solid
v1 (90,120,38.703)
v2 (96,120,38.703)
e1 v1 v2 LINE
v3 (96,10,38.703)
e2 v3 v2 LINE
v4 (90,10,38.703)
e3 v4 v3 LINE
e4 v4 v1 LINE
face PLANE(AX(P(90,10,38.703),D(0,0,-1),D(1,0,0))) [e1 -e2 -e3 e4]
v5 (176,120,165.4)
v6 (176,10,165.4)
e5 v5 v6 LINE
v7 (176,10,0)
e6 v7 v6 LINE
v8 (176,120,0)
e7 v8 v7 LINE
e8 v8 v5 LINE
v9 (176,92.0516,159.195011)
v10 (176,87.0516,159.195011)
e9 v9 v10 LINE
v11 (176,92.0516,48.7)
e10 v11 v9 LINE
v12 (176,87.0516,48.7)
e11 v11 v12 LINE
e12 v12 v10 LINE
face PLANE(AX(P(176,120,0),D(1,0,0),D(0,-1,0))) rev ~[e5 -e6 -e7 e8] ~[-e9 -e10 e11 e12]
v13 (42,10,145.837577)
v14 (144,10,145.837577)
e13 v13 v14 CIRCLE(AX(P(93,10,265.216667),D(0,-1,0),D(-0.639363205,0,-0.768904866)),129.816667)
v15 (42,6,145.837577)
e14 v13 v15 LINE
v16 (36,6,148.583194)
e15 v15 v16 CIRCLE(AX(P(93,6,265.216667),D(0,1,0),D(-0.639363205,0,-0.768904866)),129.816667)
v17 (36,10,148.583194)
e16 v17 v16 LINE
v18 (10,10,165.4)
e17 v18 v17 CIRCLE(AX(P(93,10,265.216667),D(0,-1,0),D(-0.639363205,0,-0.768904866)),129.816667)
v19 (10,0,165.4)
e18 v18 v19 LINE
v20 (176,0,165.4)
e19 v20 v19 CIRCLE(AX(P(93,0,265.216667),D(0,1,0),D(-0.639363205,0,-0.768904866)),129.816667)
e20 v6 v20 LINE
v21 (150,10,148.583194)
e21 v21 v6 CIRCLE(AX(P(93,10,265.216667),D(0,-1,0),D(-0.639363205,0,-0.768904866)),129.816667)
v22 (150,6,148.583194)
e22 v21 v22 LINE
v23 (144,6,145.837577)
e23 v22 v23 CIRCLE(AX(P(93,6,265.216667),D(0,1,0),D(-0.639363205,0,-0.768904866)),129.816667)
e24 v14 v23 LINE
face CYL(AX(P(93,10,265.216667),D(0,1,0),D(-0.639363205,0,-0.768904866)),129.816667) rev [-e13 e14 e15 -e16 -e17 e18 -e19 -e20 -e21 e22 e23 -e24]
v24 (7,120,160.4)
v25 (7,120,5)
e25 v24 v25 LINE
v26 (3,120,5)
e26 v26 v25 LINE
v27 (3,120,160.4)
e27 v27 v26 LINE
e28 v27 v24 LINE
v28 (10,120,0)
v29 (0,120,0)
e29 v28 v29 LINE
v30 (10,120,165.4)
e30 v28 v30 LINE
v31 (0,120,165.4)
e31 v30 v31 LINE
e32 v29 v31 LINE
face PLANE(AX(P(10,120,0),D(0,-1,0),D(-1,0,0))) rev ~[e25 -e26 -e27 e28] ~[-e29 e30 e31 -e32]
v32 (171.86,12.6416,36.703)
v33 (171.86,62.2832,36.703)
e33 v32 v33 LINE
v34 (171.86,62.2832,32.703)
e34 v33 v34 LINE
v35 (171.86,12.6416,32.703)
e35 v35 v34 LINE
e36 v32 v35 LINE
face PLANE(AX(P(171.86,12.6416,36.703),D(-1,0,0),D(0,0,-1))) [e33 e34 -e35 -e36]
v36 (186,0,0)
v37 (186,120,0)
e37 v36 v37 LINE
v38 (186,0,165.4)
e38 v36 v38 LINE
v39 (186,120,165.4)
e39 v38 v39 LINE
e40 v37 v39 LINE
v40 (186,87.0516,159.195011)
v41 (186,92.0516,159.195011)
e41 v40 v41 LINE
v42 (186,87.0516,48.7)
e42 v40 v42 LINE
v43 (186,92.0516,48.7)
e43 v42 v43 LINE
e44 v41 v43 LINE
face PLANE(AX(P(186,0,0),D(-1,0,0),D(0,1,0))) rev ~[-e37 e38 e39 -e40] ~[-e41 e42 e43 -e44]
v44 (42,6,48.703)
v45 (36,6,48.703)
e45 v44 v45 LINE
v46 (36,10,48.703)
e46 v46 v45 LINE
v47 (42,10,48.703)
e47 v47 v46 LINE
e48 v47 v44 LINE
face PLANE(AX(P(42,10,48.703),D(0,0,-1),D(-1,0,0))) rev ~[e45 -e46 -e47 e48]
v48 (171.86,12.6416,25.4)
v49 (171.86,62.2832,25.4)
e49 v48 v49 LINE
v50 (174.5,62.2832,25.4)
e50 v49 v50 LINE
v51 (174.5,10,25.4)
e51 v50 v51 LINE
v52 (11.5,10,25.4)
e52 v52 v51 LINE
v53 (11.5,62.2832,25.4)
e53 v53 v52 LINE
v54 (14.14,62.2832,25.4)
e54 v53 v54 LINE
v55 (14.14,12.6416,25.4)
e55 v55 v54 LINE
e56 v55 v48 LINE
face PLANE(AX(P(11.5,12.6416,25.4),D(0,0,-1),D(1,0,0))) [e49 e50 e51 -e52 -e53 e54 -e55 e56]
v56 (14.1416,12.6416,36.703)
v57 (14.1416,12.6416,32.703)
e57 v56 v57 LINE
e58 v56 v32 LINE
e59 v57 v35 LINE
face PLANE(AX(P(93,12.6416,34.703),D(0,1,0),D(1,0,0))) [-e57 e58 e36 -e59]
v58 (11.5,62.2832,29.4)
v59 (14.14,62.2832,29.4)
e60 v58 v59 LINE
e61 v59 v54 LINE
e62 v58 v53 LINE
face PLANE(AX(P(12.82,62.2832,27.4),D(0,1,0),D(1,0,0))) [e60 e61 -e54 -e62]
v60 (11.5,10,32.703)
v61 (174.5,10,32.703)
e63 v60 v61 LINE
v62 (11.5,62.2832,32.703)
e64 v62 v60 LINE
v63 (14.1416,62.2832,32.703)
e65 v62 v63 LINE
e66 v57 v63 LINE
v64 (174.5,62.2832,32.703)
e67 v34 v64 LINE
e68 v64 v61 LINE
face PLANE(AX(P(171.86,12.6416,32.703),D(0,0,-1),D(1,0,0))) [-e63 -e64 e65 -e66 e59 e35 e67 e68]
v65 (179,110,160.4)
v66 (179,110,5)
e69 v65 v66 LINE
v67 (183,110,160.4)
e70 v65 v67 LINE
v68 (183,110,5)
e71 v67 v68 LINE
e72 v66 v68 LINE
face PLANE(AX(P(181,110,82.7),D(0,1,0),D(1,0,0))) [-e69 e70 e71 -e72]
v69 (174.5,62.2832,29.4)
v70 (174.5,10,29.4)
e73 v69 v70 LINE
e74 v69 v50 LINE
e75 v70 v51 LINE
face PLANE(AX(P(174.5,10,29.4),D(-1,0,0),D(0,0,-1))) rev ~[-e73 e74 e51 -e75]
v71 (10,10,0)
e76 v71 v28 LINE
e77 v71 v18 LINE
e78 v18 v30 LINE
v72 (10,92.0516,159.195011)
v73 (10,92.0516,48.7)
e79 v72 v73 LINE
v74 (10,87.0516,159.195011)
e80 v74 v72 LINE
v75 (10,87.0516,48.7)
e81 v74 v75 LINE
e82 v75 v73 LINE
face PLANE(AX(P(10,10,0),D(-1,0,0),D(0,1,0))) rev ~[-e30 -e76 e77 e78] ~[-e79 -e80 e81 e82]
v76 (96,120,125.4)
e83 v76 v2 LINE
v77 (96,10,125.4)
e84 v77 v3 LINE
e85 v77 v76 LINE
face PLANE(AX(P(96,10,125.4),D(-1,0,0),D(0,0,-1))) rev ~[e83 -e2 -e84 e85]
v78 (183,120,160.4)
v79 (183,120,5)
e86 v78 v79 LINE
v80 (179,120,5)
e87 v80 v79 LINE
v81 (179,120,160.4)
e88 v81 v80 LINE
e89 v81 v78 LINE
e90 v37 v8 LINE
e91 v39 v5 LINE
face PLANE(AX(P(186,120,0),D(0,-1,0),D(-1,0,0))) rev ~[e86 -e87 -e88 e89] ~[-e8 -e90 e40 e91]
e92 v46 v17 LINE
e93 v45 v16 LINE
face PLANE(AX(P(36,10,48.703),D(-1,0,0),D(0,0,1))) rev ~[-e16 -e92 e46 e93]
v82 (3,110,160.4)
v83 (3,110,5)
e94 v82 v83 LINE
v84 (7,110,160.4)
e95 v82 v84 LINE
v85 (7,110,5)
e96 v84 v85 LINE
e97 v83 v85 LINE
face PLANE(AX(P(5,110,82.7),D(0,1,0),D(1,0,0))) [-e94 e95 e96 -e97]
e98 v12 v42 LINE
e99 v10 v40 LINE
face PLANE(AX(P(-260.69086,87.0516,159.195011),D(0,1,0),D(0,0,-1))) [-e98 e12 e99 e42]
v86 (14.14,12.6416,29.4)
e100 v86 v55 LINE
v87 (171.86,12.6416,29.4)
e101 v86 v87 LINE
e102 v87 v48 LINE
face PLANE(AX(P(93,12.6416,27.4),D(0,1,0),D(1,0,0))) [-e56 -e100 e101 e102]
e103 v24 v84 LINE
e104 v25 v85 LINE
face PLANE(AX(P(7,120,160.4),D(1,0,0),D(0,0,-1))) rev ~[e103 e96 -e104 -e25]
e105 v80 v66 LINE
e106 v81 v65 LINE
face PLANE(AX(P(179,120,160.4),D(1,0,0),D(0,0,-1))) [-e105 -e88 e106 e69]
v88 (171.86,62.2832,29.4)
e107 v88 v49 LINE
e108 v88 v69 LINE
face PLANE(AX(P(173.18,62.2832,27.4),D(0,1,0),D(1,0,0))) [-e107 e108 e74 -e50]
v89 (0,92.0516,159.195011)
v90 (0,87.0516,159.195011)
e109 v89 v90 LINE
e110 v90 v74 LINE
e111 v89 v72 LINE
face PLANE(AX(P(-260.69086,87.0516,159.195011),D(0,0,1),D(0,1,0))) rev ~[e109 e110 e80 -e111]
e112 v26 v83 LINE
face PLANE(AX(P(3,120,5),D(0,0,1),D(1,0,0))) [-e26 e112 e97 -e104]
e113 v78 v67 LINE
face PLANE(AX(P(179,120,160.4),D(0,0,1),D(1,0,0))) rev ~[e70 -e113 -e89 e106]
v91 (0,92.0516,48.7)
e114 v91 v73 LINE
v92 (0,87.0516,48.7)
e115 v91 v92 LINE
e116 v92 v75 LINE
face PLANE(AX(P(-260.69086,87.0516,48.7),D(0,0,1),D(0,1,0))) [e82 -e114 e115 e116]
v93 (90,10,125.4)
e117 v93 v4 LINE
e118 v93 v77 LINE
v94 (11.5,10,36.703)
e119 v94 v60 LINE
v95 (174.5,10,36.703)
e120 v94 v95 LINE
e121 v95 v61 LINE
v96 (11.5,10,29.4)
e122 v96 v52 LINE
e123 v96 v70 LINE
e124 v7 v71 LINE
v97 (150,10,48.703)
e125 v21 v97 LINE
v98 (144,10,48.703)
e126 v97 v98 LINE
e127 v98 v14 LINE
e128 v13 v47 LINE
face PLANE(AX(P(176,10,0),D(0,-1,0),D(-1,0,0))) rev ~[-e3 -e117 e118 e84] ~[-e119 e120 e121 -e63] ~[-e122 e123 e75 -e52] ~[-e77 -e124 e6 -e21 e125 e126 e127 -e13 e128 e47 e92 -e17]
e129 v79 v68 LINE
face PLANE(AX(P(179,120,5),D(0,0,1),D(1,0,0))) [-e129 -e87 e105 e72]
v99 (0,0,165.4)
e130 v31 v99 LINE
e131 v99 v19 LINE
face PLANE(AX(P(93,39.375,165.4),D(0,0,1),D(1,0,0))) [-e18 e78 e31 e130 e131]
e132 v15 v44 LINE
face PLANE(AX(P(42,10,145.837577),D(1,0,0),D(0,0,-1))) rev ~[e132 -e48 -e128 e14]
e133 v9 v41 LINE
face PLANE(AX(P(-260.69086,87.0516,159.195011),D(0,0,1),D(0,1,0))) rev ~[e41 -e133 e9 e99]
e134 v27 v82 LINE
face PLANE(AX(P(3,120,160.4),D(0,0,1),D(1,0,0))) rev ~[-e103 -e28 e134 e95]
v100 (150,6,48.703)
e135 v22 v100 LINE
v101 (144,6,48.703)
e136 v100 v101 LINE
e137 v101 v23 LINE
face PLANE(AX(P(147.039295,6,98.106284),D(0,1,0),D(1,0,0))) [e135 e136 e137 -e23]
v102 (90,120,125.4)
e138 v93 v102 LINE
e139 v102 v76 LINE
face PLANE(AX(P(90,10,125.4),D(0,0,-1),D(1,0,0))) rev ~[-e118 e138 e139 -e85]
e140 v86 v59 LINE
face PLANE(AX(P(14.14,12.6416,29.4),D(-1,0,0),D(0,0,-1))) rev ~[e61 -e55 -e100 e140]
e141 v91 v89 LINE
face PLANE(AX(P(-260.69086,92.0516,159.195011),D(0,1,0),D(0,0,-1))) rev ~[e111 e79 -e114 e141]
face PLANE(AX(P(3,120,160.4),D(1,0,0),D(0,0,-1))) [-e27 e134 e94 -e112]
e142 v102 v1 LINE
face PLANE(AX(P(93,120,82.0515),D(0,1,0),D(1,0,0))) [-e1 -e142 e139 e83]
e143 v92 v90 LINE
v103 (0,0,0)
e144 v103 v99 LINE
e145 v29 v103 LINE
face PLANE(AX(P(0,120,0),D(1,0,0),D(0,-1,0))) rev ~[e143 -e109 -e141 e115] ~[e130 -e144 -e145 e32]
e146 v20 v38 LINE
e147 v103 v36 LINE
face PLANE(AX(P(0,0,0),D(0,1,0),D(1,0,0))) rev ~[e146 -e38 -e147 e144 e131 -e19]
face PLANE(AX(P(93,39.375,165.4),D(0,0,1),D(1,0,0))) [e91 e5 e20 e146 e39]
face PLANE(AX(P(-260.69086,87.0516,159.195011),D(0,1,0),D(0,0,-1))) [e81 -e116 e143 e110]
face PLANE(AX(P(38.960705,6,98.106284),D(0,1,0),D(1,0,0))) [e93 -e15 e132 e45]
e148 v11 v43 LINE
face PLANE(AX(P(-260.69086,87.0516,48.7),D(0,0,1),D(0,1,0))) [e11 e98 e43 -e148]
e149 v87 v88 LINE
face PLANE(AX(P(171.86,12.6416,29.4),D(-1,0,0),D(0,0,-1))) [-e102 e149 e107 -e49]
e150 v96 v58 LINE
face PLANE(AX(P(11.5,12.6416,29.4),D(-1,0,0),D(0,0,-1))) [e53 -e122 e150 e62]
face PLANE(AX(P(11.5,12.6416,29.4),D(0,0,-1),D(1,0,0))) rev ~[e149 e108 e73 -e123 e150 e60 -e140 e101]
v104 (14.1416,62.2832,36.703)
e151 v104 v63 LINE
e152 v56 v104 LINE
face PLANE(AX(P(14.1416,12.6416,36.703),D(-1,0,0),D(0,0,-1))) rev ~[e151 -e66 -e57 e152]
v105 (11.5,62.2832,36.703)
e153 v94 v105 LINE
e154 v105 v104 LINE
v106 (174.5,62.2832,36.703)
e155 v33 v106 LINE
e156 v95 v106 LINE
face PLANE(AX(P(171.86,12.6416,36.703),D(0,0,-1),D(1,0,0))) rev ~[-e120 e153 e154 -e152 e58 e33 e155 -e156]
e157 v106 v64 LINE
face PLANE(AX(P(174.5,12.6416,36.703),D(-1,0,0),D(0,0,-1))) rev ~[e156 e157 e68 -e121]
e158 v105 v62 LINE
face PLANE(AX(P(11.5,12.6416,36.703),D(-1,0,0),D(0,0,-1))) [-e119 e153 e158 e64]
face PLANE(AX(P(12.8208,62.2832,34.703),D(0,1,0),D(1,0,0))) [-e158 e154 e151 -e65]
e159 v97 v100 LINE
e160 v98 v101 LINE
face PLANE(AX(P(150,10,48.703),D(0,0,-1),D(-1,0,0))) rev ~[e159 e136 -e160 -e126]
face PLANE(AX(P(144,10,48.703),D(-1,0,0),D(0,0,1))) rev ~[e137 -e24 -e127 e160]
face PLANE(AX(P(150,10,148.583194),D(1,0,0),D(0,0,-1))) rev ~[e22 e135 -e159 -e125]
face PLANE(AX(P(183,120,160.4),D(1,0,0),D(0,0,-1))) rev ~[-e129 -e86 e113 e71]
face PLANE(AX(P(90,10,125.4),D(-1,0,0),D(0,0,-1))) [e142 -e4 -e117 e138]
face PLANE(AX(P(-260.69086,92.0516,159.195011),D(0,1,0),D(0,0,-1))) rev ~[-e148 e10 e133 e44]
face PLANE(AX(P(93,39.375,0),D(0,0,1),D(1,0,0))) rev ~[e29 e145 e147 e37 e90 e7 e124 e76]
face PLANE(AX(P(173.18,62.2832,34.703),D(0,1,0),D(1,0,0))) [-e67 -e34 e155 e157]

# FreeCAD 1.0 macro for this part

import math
import FreeCAD as App
import Part
import Sketcher


def add_polygon(sketch, points):
    """Adds a closed chain of lines whose ends are joined by coincident constraints."""
    first, n = sketch.GeometryCount, len(points)
    for a, b in zip(points, points[1:] + points[:1]):
        sketch.addGeometry(Part.LineSegment(App.Vector(*a, 0), App.Vector(*b, 0)), False)
    for i in range(n):
        sketch.addConstraint(Sketcher.Constraint("Coincident", first + i, 2, first + (i + 1) % n, 1))

doc = App.newDocument("Part")
body = doc.addObject("PartDesign::Body", "Body")

sketch1 = body.newObject("Sketcher::SketchObject", "Sketch")
sketch1.AttachmentSupport = (doc.getObject("XY_Plane"), [""])
sketch1.MapMode = "FlatFace"
add_polygon(sketch1, [(0, 120), (0, 0), (186, 0), (186, 120), (176, 120), (176, 10), (10, 10), (10, 120)])
sketch1.addConstraint([
    Sketcher.Constraint("Vertical", 0),
    Sketcher.Constraint("Horizontal", 1),
    Sketcher.Constraint("Vertical", 2),
    Sketcher.Constraint("Horizontal", 3),
    Sketcher.Constraint("Vertical", 4),
    Sketcher.Constraint("Horizontal", 5),
    Sketcher.Constraint("Vertical", 6),
    Sketcher.Constraint("Horizontal", 7),
    Sketcher.Constraint("Coincident", 0, 2, -1, 1),
    Sketcher.Constraint("Horizontal", 3, 2, 6, 2),
    Sketcher.Constraint("Equal", 3, 7),
    Sketcher.Constraint("DistanceX", 1, 1, 1, 2, 186.0),
    Sketcher.Constraint("DistanceX", 3, 2, 3, 1, 10.0),
    Sketcher.Constraint("DistanceY", 0, 2, 0, 1, 120.0),
    Sketcher.Constraint("DistanceY", 4, 2, 4, 1, 110.0),
])
pad1 = body.newObject("PartDesign::Pad", "Pad")
pad1.Profile = sketch1
pad1.Length = 165.4

sketch2 = body.newObject("Sketcher::SketchObject", "Sketch001")
sketch2.AttachmentSupport = (doc.getObject("XZ_Plane"), [""])
sketch2.MapMode = "FlatFace"
sketch2.AttachmentOffset = App.Placement(App.Vector(0, 0, -10), App.Rotation())
add_polygon(sketch2, [(11.5, 32.703), (11.5, 36.703), (174.5, 36.703), (174.5, 32.703)])
sketch2.addConstraint([
    Sketcher.Constraint("Vertical", 0),
    Sketcher.Constraint("Horizontal", 1),
    Sketcher.Constraint("Vertical", 2),
    Sketcher.Constraint("Horizontal", 3),
    Sketcher.Constraint("DistanceX", 1, 1, 1, 2, 163.0),
    Sketcher.Constraint("DistanceY", 0, 1, 0, 2, 4.0),
    Sketcher.Constraint("DistanceX", -1, 1, 0, 2, 11.5),
    Sketcher.Constraint("DistanceY", -1, 1, 0, 2, 36.703),
])
pad2 = body.newObject("PartDesign::Pad", "Pad001")
pad2.Profile = sketch2
pad2.Length = 2.6416
pad2.Reversed = True

sketch3 = body.newObject("Sketcher::SketchObject", "Sketch002")
sketch3.AttachmentSupport = (doc.getObject("YZ_Plane"), [""])
sketch3.MapMode = "FlatFace"
sketch3.AttachmentOffset = App.Placement(App.Vector(0, 0, 10), App.Rotation())
add_polygon(sketch3, [(92.0516, 159.195011), (87.0516, 159.195011), (87.0516, 48.7), (92.0516, 48.7)])
sketch3.addConstraint([
    Sketcher.Constraint("Horizontal", 0),
    Sketcher.Constraint("Vertical", 1),
    Sketcher.Constraint("Horizontal", 2),
    Sketcher.Constraint("Vertical", 3),
    Sketcher.Constraint("DistanceX", 0, 2, 0, 1, 5.0),
    Sketcher.Constraint("DistanceY", -1, 1, 1, 2, 48.7),
    Sketcher.Constraint("DistanceY", 1, 2, 1, 1, 110.495011),
    Sketcher.Constraint("DistanceX", -1, 1, 0, 2, 87.0516),
])
pocket1 = body.newObject("PartDesign::Pocket", "Pocket")
pocket1.Profile = sketch3
pocket1.Type = "ThroughAll"
pocket1.Midplane = True

sketch4 = body.newObject("Sketcher::SketchObject", "Sketch003")
sketch4.AttachmentSupport = (doc.getObject("XZ_Plane"), [""])
sketch4.MapMode = "FlatFace"
sketch4.AttachmentOffset = App.Placement(App.Vector(0, 0, -10), App.Rotation())
sketch4.addGeometry([
    Part.LineSegment(App.Vector(10, 165.4, 0), App.Vector(176, 165.4, 0)),
    Part.ArcOfCircle(Part.Circle(App.Vector(93, 265.216667, 0), App.Vector(0, 0, 1), 129.816667), math.radians(-129.744352), math.radians(-50.255648)),
], False)
sketch4.addConstraint([
    Sketcher.Constraint("Coincident", 0, 1, 1, 1),
    Sketcher.Constraint("Coincident", 1, 2, 0, 2),
    Sketcher.Constraint("Horizontal", 0),
    Sketcher.Constraint("DistanceX", 0, 1, 0, 2, 166.0),
    Sketcher.Constraint("DistanceX", -1, 1, 1, 3, 93.0),
    Sketcher.Constraint("DistanceY", -1, 1, 0, 1, 165.4),
    Sketcher.Constraint("Radius", 1, 129.816667),
])
pocket2 = body.newObject("PartDesign::Pocket", "Pocket001")
pocket2.Profile = sketch4
pocket2.Type = "ThroughAll"
pocket2.Reversed = True

sketch5 = body.newObject("Sketcher::SketchObject", "Sketch004")
sketch5.AttachmentSupport = (doc.getObject("XZ_Plane"), [""])
sketch5.MapMode = "FlatFace"
sketch5.AttachmentOffset = App.Placement(App.Vector(0, 0, -120), App.Rotation())
add_polygon(sketch5, [(3, 5), (3, 160.4), (7, 160.4), (7, 5)])
sketch5.addConstraint([
    Sketcher.Constraint("Vertical", 0),
    Sketcher.Constraint("Horizontal", 1),
    Sketcher.Constraint("Vertical", 2),
    Sketcher.Constraint("Horizontal", 3),
    Sketcher.Constraint("DistanceX", 1, 1, 1, 2, 4.0),
    Sketcher.Constraint("DistanceY", 0, 1, 0, 2, 155.4),
    Sketcher.Constraint("DistanceX", -1, 1, 0, 2, 3.0),
    Sketcher.Constraint("DistanceY", -1, 1, 2, 2, 5.0),
])
pocket3 = body.newObject("PartDesign::Pocket", "Pocket002")
pocket3.Profile = sketch5
pocket3.Length = 10
pocket3.Reversed = True

sketch6 = body.newObject("Sketcher::SketchObject", "Sketch005")
sketch6.AttachmentSupport = (doc.getObject("XZ_Plane"), [""])
sketch6.MapMode = "FlatFace"
sketch6.AttachmentOffset = App.Placement(App.Vector(0, 0, -120), App.Rotation())
add_polygon(sketch6, [(179, 5), (179, 160.4), (183, 160.4), (183, 5)])
sketch6.addConstraint([
    Sketcher.Constraint("Vertical", 0),
    Sketcher.Constraint("Horizontal", 1),
    Sketcher.Constraint("Vertical", 2),
    Sketcher.Constraint("Horizontal", 3),
    Sketcher.Constraint("DistanceX", 1, 1, 1, 2, 4.0),
    Sketcher.Constraint("DistanceY", 0, 1, 0, 2, 155.4),
    Sketcher.Constraint("DistanceX", -1, 1, 0, 2, 179.0),
    Sketcher.Constraint("DistanceY", -1, 1, 2, 2, 5.0),
])
pocket4 = body.newObject("PartDesign::Pocket", "Pocket003")
pocket4.Profile = sketch6
pocket4.Length = 10
pocket4.Reversed = True

sketch7 = body.newObject("Sketcher::SketchObject", "Sketch006")
sketch7.AttachmentSupport = (doc.getObject("XZ_Plane"), [""])
sketch7.MapMode = "FlatFace"
sketch7.AttachmentOffset = App.Placement(App.Vector(0, 0, -10), App.Rotation())
add_polygon(sketch7, [(90, 38.703), (90, 125.4), (96, 125.4), (96, 38.703)])
sketch7.addConstraint([
    Sketcher.Constraint("Vertical", 0),
    Sketcher.Constraint("Horizontal", 1),
    Sketcher.Constraint("Vertical", 2),
    Sketcher.Constraint("Horizontal", 3),
    Sketcher.Constraint("DistanceX", 1, 1, 1, 2, 6.0),
    Sketcher.Constraint("DistanceX", -1, 1, 0, 2, 90.0),
    Sketcher.Constraint("DistanceY", -1, 1, 0, 2, 125.4),
    Sketcher.Constraint("DistanceY", 0, 1, 0, 2, 86.697),
])
pad3 = body.newObject("PartDesign::Pad", "Pad002")
pad3.Profile = sketch7
pad3.Length = 110
pad3.Reversed = True

sketch8 = body.newObject("Sketcher::SketchObject", "Sketch007")
sketch8.AttachmentSupport = (doc.getObject("XZ_Plane"), [""])
sketch8.MapMode = "FlatFace"
sketch8.AttachmentOffset = App.Placement(App.Vector(0, 0, -10), App.Rotation())
add_polygon(sketch8, [(36, 48.703), (36, 148.583194), (42, 145.837577), (42, 48.703)])
add_polygon(sketch8, [(144, 145.837577), (150, 148.583194), (150, 48.703), (144, 48.703)])
sketch8.addConstraint([
    Sketcher.Constraint("Vertical", 0),
    Sketcher.Constraint("Vertical", 2),
    Sketcher.Constraint("Horizontal", 3),
    Sketcher.Constraint("Vertical", 5),
    Sketcher.Constraint("Horizontal", 6),
    Sketcher.Constraint("Vertical", 7),
    Sketcher.Constraint("Horizontal", 0, 2, 4, 2),
    Sketcher.Constraint("Horizontal", 3, 2, 5, 2),
    Sketcher.Constraint("Horizontal", 1, 2, 7, 2),
    Sketcher.Constraint("Equal", 3, 6),
    Sketcher.Constraint("DistanceX", 3, 2, 3, 1, 6.0),
    Sketcher.Constraint("DistanceX", -1, 1, 0, 2, 36.0),
    Sketcher.Constraint("DistanceX", -1, 1, 4, 2, 150.0),
    Sketcher.Constraint("DistanceY", -1, 1, 2, 2, 48.703),
    Sketcher.Constraint("DistanceY", 0, 1, 0, 2, 99.880194),
    Sketcher.Constraint("DistanceY", 2, 2, 2, 1, 97.134577),
])
pocket5 = body.newObject("PartDesign::Pocket", "Pocket004")
pocket5.Profile = sketch8
pocket5.Length = 4
pocket5.Reversed = True

sketch9 = body.newObject("Sketcher::SketchObject", "Sketch008")
sketch9.AttachmentSupport = (doc.getObject("XZ_Plane"), [""])
sketch9.MapMode = "FlatFace"
sketch9.AttachmentOffset = App.Placement(App.Vector(0, 0, -10), App.Rotation())
add_polygon(sketch9, [(11.5, 25.4), (11.5, 29.4), (174.5, 29.4), (174.5, 25.4)])
sketch9.addConstraint([
    Sketcher.Constraint("Vertical", 0),
    Sketcher.Constraint("Horizontal", 1),
    Sketcher.Constraint("Vertical", 2),
    Sketcher.Constraint("Horizontal", 3),
    Sketcher.Constraint("DistanceX", 1, 1, 1, 2, 163.0),
    Sketcher.Constraint("DistanceY", 0, 1, 0, 2, 4.0),
    Sketcher.Constraint("DistanceX", -1, 1, 0, 2, 11.5),
    Sketcher.Constraint("DistanceY", -1, 1, 0, 2, 29.4),
])
pad4 = body.newObject("PartDesign::Pad", "Pad003")
pad4.Profile = sketch9
pad4.Length = 2.6416
pad4.Reversed = True

sketch10 = body.newObject("Sketcher::SketchObject", "Sketch009")
sketch10.AttachmentSupport = (doc.getObject("XZ_Plane"), [""])
sketch10.MapMode = "FlatFace"
sketch10.AttachmentOffset = App.Placement(App.Vector(0, 0, -12.6416), App.Rotation())
add_polygon(sketch10, [(11.5, 32.703), (11.5, 36.703), (14.1416, 36.703), (14.1416, 32.703)])
sketch10.addConstraint([
    Sketcher.Constraint("Vertical", 0),
    Sketcher.Constraint("Horizontal", 1),
    Sketcher.Constraint("Vertical", 2),
    Sketcher.Constraint("Horizontal", 3),
    Sketcher.Constraint("DistanceY", 0, 1, 0, 2, 4.0),
    Sketcher.Constraint("DistanceX", -1, 1, 0, 2, 11.5),
    Sketcher.Constraint("DistanceX", 1, 1, 1, 2, 2.6416),
    Sketcher.Constraint("DistanceY", -1, 1, 0, 2, 36.703),
])
pad5 = body.newObject("PartDesign::Pad", "Pad004")
pad5.Profile = sketch10
pad5.Length = 49.6416
pad5.Reversed = True

sketch11 = body.newObject("Sketcher::SketchObject", "Sketch010")
sketch11.AttachmentSupport = (doc.getObject("XZ_Plane"), [""])
sketch11.MapMode = "FlatFace"
sketch11.AttachmentOffset = App.Placement(App.Vector(0, 0, -12.6416), App.Rotation())
add_polygon(sketch11, [(11.5, 25.4), (11.5, 29.4), (14.14, 29.4), (14.14, 25.4)])
sketch11.addConstraint([
    Sketcher.Constraint("Vertical", 0),
    Sketcher.Constraint("Horizontal", 1),
    Sketcher.Constraint("Vertical", 2),
    Sketcher.Constraint("Horizontal", 3),
    Sketcher.Constraint("DistanceY", 0, 1, 0, 2, 4.0),
    Sketcher.Constraint("DistanceX", 1, 1, 1, 2, 2.64),
    Sketcher.Constraint("DistanceX", -1, 1, 0, 2, 11.5),
    Sketcher.Constraint("DistanceY", -1, 1, 0, 2, 29.4),
])
pad6 = body.newObject("PartDesign::Pad", "Pad005")
pad6.Profile = sketch11
pad6.Length = 49.6416
pad6.Reversed = True

sketch12 = body.newObject("Sketcher::SketchObject", "Sketch011")
sketch12.AttachmentSupport = (doc.getObject("XZ_Plane"), [""])
sketch12.MapMode = "FlatFace"
sketch12.AttachmentOffset = App.Placement(App.Vector(0, 0, -12.6416), App.Rotation())
add_polygon(sketch12, [(171.86, 32.703), (171.86, 36.703), (174.5, 36.703), (174.5, 32.703)])
add_polygon(sketch12, [(171.86, 25.4), (171.86, 29.4), (174.5, 29.4), (174.5, 25.4)])
sketch12.addConstraint([
    Sketcher.Constraint("Vertical", 0),
    Sketcher.Constraint("Horizontal", 1),
    Sketcher.Constraint("Vertical", 2),
    Sketcher.Constraint("Horizontal", 3),
    Sketcher.Constraint("Vertical", 4),
    Sketcher.Constraint("Horizontal", 5),
    Sketcher.Constraint("Vertical", 6),
    Sketcher.Constraint("Horizontal", 7),
    Sketcher.Constraint("Vertical", 3, 2, 4, 2),
    Sketcher.Constraint("Vertical", 2, 2, 5, 2),
    Sketcher.Constraint("Equal", 2, 4),
    Sketcher.Constraint("DistanceY", 0, 1, 0, 2, 4.0),
    Sketcher.Constraint("DistanceX", 1, 1, 1, 2, 2.64),
    Sketcher.Constraint("DistanceX", -1, 1, 1, 2, 174.5),
    Sketcher.Constraint("DistanceY", -1, 1, 4, 2, 29.4),
    Sketcher.Constraint("DistanceY", -1, 1, 0, 2, 36.703),
])
pad7 = body.newObject("PartDesign::Pad", "Pad006")
pad7.Profile = sketch12
pad7.Length = 49.6416
pad7.Reversed = True

doc.recompute()
